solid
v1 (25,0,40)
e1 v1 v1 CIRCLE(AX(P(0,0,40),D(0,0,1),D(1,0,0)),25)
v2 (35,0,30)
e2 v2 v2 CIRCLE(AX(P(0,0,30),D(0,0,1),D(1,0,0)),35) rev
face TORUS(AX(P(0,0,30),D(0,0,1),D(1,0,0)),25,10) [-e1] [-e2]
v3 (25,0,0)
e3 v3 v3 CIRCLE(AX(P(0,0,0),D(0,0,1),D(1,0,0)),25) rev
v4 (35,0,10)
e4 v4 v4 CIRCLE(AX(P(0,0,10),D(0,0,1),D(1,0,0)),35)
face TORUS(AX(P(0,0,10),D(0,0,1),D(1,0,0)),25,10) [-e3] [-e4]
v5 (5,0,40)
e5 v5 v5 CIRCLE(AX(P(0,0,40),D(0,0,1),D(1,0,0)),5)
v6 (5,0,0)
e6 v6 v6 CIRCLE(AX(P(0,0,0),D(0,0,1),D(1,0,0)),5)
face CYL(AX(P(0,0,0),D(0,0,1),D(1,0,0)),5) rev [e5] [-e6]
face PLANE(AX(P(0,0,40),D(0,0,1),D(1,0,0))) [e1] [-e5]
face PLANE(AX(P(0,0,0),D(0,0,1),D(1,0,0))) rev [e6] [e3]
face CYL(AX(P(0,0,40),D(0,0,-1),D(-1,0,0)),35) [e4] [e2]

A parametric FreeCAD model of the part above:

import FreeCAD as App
import Part
import Sketcher

V = App.Vector
Q = App.Units.Quantity


def edges_at(feature, points):
    """Names of the edges that pass closest to the given points."""
    edges = feature.Shape.Edges
    near = lambda p: min(range(len(edges)), key=lambda i: edges[i].distToShape(Part.Vertex(*p))[0])
    return sorted({f"Edge{near(p) + 1}" for p in points})

doc = App.newDocument("Part")
body = doc.addObject("PartDesign::Body", "Body")

# Sketch on XY plane
sketch1 = doc.addObject("Sketcher::SketchObject", "Sketch")
body.addObject(sketch1)
sketch1.AttachmentSupport = (doc.XY_Plane, [""])
sketch1.MapMode = "FlatFace"
sketch1.addGeometry(Part.Circle(V(0, 0, 0), V(0, 0, 1), 35), False)
sketch1.addConstraint([
    Sketcher.Constraint("Coincident", 0, 3, -1, 1),
    Sketcher.Constraint("Diameter", 0, Q("70 mm")),
])
pad1 = doc.addObject("PartDesign::Pad", "Pad")
body.addObject(pad1)
pad1.Profile = sketch1
pad1.Length = 40
doc.recompute()

fillet = doc.addObject("PartDesign::Fillet", "Fillet")
body.addObject(fillet)
fillet.Base = (pad1, edges_at(pad1, [(-35, 0, 0), (-35, 0, 40)]))
fillet.Radius = 10

# Sketch on XY plane
sketch2 = doc.addObject("Sketcher::SketchObject", "Sketch001")
body.addObject(sketch2)
sketch2.AttachmentSupport = (doc.XY_Plane, [""])
sketch2.MapMode = "FlatFace"
sketch2.AttachmentOffset = App.Placement(V(0, 0, 40), App.Rotation())
sketch2.addGeometry(Part.Circle(V(0, 0, 0), V(0, 0, 1), 5), False)
sketch2.addConstraint([
    Sketcher.Constraint("Coincident", 0, 3, -1, 1),
    Sketcher.Constraint("Diameter", 0, Q("10 mm")),
])
pocket1 = doc.addObject("PartDesign::Pocket", "Pocket")
body.addObject(pocket1)
pocket1.Profile = sketch2
pocket1.Length = 40

doc.recompute()
